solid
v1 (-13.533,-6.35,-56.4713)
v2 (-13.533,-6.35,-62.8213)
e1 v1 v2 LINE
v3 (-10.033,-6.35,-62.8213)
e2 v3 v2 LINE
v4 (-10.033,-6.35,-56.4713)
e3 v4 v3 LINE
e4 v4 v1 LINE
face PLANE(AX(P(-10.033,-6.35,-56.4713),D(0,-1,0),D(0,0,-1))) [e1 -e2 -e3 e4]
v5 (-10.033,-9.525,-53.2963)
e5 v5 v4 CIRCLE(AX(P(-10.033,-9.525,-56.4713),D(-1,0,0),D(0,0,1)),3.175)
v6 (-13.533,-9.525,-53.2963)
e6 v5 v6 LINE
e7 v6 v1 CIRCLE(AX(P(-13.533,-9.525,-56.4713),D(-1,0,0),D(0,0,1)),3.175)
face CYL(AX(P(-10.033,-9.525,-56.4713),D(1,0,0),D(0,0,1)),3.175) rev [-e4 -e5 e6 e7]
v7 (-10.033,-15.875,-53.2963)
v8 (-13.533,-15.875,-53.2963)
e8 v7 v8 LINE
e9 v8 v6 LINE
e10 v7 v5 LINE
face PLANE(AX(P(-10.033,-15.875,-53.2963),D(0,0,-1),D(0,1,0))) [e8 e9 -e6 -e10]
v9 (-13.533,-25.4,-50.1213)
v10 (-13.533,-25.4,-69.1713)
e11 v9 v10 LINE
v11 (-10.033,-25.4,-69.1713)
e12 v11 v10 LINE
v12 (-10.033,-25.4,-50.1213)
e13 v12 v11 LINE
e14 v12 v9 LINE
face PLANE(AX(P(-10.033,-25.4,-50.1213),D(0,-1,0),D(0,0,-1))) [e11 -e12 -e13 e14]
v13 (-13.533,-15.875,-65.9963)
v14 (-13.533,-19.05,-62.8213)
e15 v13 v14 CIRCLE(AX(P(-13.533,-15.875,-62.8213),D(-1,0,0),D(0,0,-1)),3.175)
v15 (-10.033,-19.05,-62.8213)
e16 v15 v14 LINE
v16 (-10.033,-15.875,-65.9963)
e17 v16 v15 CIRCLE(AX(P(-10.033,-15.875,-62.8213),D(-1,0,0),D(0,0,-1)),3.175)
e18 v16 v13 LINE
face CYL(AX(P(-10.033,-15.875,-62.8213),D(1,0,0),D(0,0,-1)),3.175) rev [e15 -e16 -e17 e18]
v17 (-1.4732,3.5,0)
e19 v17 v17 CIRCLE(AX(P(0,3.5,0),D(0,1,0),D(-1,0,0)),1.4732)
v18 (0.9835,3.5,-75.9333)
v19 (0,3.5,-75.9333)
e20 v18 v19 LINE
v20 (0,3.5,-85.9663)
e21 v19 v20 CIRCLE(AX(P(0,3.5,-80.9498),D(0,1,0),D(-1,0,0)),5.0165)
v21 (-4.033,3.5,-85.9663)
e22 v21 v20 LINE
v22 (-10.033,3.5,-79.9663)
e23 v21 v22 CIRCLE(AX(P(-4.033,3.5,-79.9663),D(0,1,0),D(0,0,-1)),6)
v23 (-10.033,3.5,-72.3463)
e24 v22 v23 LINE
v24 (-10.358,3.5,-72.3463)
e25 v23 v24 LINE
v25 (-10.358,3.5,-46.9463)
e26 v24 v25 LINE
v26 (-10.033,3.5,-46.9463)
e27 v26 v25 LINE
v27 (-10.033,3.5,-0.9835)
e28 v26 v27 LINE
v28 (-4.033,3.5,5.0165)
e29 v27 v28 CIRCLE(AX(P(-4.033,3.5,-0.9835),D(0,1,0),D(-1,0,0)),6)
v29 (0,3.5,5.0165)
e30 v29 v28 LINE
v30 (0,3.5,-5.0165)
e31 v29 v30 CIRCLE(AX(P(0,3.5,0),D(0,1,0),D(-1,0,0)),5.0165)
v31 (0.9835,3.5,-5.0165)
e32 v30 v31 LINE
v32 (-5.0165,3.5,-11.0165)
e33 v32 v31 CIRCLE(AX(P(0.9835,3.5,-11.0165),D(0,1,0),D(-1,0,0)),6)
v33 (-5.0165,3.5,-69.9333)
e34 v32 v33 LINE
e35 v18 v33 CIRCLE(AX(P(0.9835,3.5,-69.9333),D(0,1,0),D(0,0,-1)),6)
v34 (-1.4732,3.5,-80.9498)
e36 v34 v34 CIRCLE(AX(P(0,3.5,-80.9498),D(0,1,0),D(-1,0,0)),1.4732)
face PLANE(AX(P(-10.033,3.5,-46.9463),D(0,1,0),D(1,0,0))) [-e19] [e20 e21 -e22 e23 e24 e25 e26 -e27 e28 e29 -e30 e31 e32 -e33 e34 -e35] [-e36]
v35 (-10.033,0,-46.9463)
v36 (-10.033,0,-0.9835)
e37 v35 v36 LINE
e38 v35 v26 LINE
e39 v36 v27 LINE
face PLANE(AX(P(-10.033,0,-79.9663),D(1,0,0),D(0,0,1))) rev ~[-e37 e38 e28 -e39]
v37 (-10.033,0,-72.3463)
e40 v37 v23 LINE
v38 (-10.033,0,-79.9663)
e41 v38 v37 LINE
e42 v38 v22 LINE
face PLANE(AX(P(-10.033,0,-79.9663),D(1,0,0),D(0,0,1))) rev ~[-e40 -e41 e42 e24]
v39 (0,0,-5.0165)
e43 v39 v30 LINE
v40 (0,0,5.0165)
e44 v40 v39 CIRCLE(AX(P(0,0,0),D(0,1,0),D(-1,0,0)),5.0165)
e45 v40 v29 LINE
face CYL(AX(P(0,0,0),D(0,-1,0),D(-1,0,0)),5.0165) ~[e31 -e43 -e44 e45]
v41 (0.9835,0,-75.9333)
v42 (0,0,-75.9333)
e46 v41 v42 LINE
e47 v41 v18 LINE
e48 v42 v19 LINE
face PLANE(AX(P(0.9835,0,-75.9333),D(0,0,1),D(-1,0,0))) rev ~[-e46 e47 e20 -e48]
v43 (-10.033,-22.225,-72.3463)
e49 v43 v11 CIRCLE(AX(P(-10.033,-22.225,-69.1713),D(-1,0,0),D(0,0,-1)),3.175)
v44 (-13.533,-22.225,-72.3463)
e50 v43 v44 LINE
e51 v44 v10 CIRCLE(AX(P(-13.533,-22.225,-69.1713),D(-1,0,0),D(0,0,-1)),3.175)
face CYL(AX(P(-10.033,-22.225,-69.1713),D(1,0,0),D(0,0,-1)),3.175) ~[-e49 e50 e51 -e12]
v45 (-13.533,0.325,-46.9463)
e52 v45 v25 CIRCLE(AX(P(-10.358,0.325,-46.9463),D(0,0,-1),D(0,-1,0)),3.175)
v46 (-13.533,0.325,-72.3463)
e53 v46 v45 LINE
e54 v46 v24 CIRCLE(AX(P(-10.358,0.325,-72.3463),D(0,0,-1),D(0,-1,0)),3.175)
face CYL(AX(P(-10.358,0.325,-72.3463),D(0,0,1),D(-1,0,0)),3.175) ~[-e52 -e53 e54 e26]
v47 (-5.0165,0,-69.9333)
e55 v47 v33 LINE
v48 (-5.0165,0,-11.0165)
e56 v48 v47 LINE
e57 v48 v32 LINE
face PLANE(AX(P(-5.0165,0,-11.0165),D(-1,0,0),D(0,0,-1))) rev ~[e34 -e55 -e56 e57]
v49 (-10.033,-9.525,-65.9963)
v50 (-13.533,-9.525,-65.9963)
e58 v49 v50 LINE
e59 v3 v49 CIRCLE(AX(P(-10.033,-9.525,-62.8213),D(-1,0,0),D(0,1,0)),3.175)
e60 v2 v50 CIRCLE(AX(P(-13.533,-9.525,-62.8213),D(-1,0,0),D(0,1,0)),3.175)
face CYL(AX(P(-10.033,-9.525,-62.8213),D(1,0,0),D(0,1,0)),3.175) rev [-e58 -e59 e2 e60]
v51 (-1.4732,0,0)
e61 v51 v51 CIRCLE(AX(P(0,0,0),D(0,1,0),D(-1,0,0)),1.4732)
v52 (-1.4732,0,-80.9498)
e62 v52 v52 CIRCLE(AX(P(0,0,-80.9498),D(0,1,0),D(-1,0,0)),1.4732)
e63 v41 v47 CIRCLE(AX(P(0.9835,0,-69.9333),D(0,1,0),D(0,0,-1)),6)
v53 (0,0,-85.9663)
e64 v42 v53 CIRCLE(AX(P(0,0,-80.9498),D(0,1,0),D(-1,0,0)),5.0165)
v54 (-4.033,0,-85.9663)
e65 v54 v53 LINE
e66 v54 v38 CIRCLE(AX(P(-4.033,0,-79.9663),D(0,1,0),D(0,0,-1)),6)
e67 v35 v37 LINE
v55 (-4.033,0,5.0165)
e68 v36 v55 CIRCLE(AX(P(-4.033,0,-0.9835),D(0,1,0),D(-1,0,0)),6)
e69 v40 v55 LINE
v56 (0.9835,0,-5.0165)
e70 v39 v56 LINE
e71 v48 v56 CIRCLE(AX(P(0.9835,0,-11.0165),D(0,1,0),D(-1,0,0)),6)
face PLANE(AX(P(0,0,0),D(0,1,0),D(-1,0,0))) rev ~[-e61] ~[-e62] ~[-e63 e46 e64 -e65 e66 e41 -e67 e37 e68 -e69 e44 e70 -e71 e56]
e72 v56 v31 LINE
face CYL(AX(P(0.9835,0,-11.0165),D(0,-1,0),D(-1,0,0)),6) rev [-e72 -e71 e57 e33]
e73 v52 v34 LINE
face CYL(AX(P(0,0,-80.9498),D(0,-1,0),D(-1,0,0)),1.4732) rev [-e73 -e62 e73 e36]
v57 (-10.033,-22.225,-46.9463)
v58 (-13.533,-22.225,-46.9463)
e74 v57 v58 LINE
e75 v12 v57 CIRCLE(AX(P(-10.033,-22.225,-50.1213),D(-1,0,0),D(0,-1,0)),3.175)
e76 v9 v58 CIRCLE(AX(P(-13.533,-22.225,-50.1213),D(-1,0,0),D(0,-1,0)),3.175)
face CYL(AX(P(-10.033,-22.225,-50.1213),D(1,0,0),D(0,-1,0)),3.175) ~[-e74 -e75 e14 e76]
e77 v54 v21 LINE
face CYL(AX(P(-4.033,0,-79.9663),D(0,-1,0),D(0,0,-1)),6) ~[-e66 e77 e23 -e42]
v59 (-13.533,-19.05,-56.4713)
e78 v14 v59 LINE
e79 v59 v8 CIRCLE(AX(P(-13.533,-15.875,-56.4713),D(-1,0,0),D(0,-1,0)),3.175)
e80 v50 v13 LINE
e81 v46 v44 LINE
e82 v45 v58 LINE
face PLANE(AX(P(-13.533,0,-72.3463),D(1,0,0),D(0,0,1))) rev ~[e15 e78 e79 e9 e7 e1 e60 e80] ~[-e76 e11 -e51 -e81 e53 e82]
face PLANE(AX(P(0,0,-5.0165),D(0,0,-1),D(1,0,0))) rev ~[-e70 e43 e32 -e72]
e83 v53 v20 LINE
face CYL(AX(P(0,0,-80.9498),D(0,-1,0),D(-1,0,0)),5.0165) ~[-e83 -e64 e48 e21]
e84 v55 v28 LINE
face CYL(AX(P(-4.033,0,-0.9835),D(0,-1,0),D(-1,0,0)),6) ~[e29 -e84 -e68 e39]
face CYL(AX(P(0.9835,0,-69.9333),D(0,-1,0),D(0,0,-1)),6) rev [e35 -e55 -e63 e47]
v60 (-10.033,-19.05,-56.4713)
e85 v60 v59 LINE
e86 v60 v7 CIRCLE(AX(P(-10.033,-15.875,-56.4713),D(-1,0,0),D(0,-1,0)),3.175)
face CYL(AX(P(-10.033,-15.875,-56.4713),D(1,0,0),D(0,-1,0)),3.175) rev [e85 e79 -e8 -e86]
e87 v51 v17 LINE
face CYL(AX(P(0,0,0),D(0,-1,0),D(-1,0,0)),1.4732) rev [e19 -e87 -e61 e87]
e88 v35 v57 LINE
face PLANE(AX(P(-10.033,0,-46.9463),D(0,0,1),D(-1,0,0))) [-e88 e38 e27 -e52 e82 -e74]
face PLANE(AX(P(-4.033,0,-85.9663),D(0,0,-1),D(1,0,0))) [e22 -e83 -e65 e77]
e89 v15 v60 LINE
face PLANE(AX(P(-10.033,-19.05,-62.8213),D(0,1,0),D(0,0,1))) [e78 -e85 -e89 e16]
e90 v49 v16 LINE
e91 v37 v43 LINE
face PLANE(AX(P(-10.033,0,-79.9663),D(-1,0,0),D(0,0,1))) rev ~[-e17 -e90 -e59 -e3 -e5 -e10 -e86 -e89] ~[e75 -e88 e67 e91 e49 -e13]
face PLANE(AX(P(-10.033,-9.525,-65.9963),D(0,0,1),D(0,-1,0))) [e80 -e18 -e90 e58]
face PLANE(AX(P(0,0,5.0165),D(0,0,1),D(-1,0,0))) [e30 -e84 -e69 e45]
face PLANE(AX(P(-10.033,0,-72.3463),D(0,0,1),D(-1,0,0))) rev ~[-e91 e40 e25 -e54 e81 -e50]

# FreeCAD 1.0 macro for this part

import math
import FreeCAD as App
import Part
import Sketcher
Q = App.Units.Quantity


def edges_at(feature, points):
    """Names of the edges that pass closest to the given points."""
    edges = feature.Shape.Edges
    near = lambda p: min(range(len(edges)), key=lambda i: edges[i].distToShape(Part.Vertex(*p))[0])
    return sorted({f"Edge{near(p) + 1}" for p in points})

doc = App.newDocument("Part")
body = doc.addObject("PartDesign::Body", "Body")
body.AllowCompound = True

sketch1 = doc.addObject("Sketcher::SketchObject", "Sketch")
body.addObject(sketch1)
sketch1.AttachmentSupport = (doc.XZ_Plane, [""])
sketch1.MapMode = "FlatFace"
sketch1.addGeometry([
    Part.ArcOfCircle(Part.Circle(App.Vector(0, 0, 0), App.Vector(0, 0, 1), 5), math.radians(-90), math.radians(90)),
    Part.LineSegment(App.Vector(0, -5, 0), App.Vector(1, -5, 0)),
    Part.ArcOfCircle(Part.Circle(App.Vector(1, -11, 0), App.Vector(0, 0, 1), 6), math.radians(90), math.radians(180)),
    Part.LineSegment(App.Vector(-5, -11, 0), App.Vector(-5, -69.9, 0)),
    Part.ArcOfCircle(Part.Circle(App.Vector(1, -69.9, 0), App.Vector(0, 0, 1), 6), math.radians(180), math.radians(270)),
    Part.LineSegment(App.Vector(1, -75.9, 0), App.Vector(0, -75.9, 0)),
    Part.ArcOfCircle(Part.Circle(App.Vector(0, -80.9, 0), App.Vector(0, 0, 1), 5), math.radians(-90), math.radians(90)),
    Part.LineSegment(App.Vector(0, -86, 0), App.Vector(-4, -86, 0)),
    Part.ArcOfCircle(Part.Circle(App.Vector(-4, -80, 0), App.Vector(0, 0, 1), 6), math.radians(180), math.radians(270)),
    Part.LineSegment(App.Vector(-10, -80, 0), App.Vector(-10, -1, 0)),
    Part.ArcOfCircle(Part.Circle(App.Vector(-4, -1, 0), App.Vector(0, 0, 1), 6), math.radians(90), math.radians(180)),
    Part.LineSegment(App.Vector(-4, 5, 0), App.Vector(0, 5, 0)),
    Part.Circle(App.Vector(0, 0, 0), App.Vector(0, 0, 1), 1.5),
    Part.Circle(App.Vector(0, -80.9, 0), App.Vector(0, 0, 1), 1.5),
], False)
sketch1.addConstraint([
    Sketcher.Constraint("Tangent", 0, 1, 1, 1),
    Sketcher.Constraint("Tangent", 1, 2, 2, 1),
    Sketcher.Constraint("Tangent", 2, 2, 3, 1),
    Sketcher.Constraint("Tangent", 3, 2, 4, 1),
    Sketcher.Constraint("Tangent", 4, 2, 5, 1),
    Sketcher.Constraint("Tangent", 5, 2, 6, 2),
    Sketcher.Constraint("Tangent", 6, 1, 7, 1),
    Sketcher.Constraint("Tangent", 7, 2, 8, 2),
    Sketcher.Constraint("Tangent", 8, 1, 9, 1),
    Sketcher.Constraint("Tangent", 9, 2, 10, 2),
    Sketcher.Constraint("Tangent", 10, 1, 11, 1),
    Sketcher.Constraint("Tangent", 11, 2, 0, 2),
    Sketcher.Constraint("Horizontal", 1),
    Sketcher.Constraint("Vertical", 3),
    Sketcher.Constraint("Horizontal", 5),
    Sketcher.Constraint("Horizontal", 7),
    Sketcher.Constraint("Vertical", 9),
    Sketcher.Constraint("Horizontal", 11),
    Sketcher.Constraint("Coincident", 0, 3, -1, 1),
    Sketcher.Constraint("Coincident", 12, 3, -1, 1),
    Sketcher.Constraint("Coincident", 13, 3, 6, 3),
    Sketcher.Constraint("Equal", 2, 4),
    Sketcher.Constraint("Equal", 0, 6),
    Sketcher.Constraint("Equal", 4, 8),
    Sketcher.Constraint("Equal", 8, 10),
    Sketcher.Constraint("Equal", 12, 13),
    Sketcher.Constraint("PointOnObject", 6, 3, -2),
    Sketcher.Constraint("Diameter", 12, Q("0.116 in")),
    Sketcher.Constraint("Radius", 0, Q("0.1975 in")),
    Sketcher.Constraint("Radius", 2, Q("6 mm")),
    Sketcher.Constraint("DistanceY", 6, 3, -1, 1, Q("3.187 in")),
    Sketcher.Constraint("DistanceX", 8, 1, -1, 1, Q("0.395 in")),
    Sketcher.Constraint("DistanceX", 1, 1, 1, 2, Q("0.9835 mm")),
])
pad1 = doc.addObject("PartDesign::Pad", "Pad")
body.addObject(pad1)
pad1.Profile = sketch1
pad1.Length = Q("0.1377953 in")
pad1.Reversed = True

sketch2 = doc.addObject("Sketcher::SketchObject", "Sketch001")
body.addObject(sketch2)
sketch2.AttachmentSupport = (doc.YZ_Plane, [""])
sketch2.MapMode = "FlatFace"
sketch2.AttachmentOffset = App.Placement(App.Vector(0, 0, -0.395 * 25.4), App.Rotation())
sketch2.addGeometry([
    Part.LineSegment(App.Vector(0, -46.9, 0), App.Vector(0, -72.3, 0)),
    Part.LineSegment(App.Vector(0, -72.3, 0), App.Vector(-22.2, -72.3, 0)),
    Part.ArcOfCircle(Part.Circle(App.Vector(-22.2, -69.2, 0), App.Vector(0, 0, 1), 3.2), math.radians(180), math.radians(270)),
    Part.LineSegment(App.Vector(-25.4, -69.2, 0), App.Vector(-25.4, -50.1, 0)),
    Part.ArcOfCircle(Part.Circle(App.Vector(-22.2, -50.1, 0), App.Vector(0, 0, 1), 3.2), math.radians(90), math.radians(180)),
    Part.LineSegment(App.Vector(-22.2, -46.9, 0), App.Vector(0, -46.9, 0)),
    Part.LineSegment(App.Vector(-6.3, -62.8, 0), App.Vector(-6.3, -56.5, 0)),
    Part.ArcOfCircle(Part.Circle(App.Vector(-9.5, -56.5, 0), App.Vector(0, 0, 1), 3.2), math.radians(0), math.radians(90)),
    Part.LineSegment(App.Vector(-9.5, -53.3, 0), App.Vector(-15.9, -53.3, 0)),
    Part.ArcOfCircle(Part.Circle(App.Vector(-15.9, -56.5, 0), App.Vector(0, 0, 1), 3.2), math.radians(90), math.radians(180)),
    Part.LineSegment(App.Vector(-19.1, -56.5, 0), App.Vector(-19.1, -62.8, 0)),
    Part.ArcOfCircle(Part.Circle(App.Vector(-15.9, -62.8, 0), App.Vector(0, 0, 1), 3.2), math.radians(180), math.radians(270)),
    Part.LineSegment(App.Vector(-15.9, -66, 0), App.Vector(-9.5, -66, 0)),
    Part.ArcOfCircle(Part.Circle(App.Vector(-9.5, -62.8, 0), App.Vector(0, 0, 1), 3.2), math.radians(-90), math.radians(0)),
], False)
sketch2.addConstraint([
    Sketcher.Constraint("Coincident", 0, 2, 1, 1),
    Sketcher.Constraint("Tangent", 1, 2, 2, 2),
    Sketcher.Constraint("Tangent", 2, 1, 3, 1),
    Sketcher.Constraint("Tangent", 3, 2, 4, 2),
    Sketcher.Constraint("Tangent", 4, 1, 5, 1),
    Sketcher.Constraint("Coincident", 5, 2, 0, 1),
    Sketcher.Constraint("Tangent", 6, 2, 7, 1),
    Sketcher.Constraint("Tangent", 7, 2, 8, 1),
    Sketcher.Constraint("Tangent", 8, 2, 9, 1),
    Sketcher.Constraint("Tangent", 9, 2, 10, 1),
    Sketcher.Constraint("Tangent", 10, 2, 11, 1),
    Sketcher.Constraint("Tangent", 11, 2, 12, 1),
    Sketcher.Constraint("Tangent", 12, 2, 13, 1),
    Sketcher.Constraint("Tangent", 13, 2, 6, 1),
    Sketcher.Constraint("Vertical", 0),
    Sketcher.Constraint("Horizontal", 1),
    Sketcher.Constraint("Vertical", 3),
    Sketcher.Constraint("Horizontal", 5),
    Sketcher.Constraint("Vertical", 6),
    Sketcher.Constraint("Horizontal", 8),
    Sketcher.Constraint("Vertical", 10),
    Sketcher.Constraint("Horizontal", 12),
    Sketcher.Constraint("Equal", 2, 4),
    Sketcher.Constraint("Equal", 4, 7),
    Sketcher.Constraint("Equal", 7, 9),
    Sketcher.Constraint("Equal", 9, 11),
    Sketcher.Constraint("Equal", 11, 13),
    Sketcher.Constraint("PointOnObject", 0, 2, -2),
    Sketcher.Constraint("Equal", 12, 6),
    Sketcher.Constraint("DistanceY", 0, 2, 0, 1, Q("1 in")),
    Sketcher.Constraint("DistanceX", 2, 1, -1, 1, Q("1 in")),
    Sketcher.Constraint("Radius", 2, Q("0.125 in")),
    Sketcher.Constraint("DistanceX", 8, 2, 8, 1, Q("0.25 in")),
    Sketcher.Constraint("DistanceX", 6, 2, -1, 1, Q("0.25 in")),
    Sketcher.Constraint("DistanceY", 7, 3, 4, 3, Q("0.25 in")),
    Sketcher.Constraint("DistanceY", 2, 3, -1, 1, Q("69.1713 mm")),
])
pad2 = doc.addObject("PartDesign::Pad", "Pad001")
body.addObject(pad2)
pad2.Profile = sketch2
pad2.Length = Q("0.1377953 in")
pad2.Reversed = True

sketch3 = doc.addObject("Sketcher::SketchObject", "Sketch002")
body.addObject(sketch3)
sketch3.AttachmentSupport = (doc.XZ_Plane, [""])
sketch3.MapMode = "FlatFace"
sketch3.addGeometry([
    Part.LineSegment(App.Vector(-10, -46.9, 0), App.Vector(-10, -72.3, 0)),
    Part.LineSegment(App.Vector(-10, -72.3, 0), App.Vector(-13.5, -72.3, 0)),
    Part.LineSegment(App.Vector(-13.5, -72.3, 0), App.Vector(-13.5, -46.9, 0)),
    Part.LineSegment(App.Vector(-13.5, -46.9, 0), App.Vector(-10, -46.9, 0)),
], False)
sketch3.addConstraint([
    Sketcher.Constraint("Coincident", 0, 2, 1, 1),
    Sketcher.Constraint("Coincident", 1, 2, 2, 1),
    Sketcher.Constraint("Coincident", 2, 2, 3, 1),
    Sketcher.Constraint("Coincident", 3, 2, 0, 1),
    Sketcher.Constraint("Vertical", 0),
    Sketcher.Constraint("Horizontal", 1),
    Sketcher.Constraint("Vertical", 2),
    Sketcher.Constraint("Horizontal", 3),
    Sketcher.Constraint("DistanceY", 0, 2, 0, 1, Q("1 in")),
    Sketcher.Constraint("DistanceX", 1, 2, 1, 1, Q("0.1378 in")),
    Sketcher.Constraint("DistanceX", 0, 2, -1, 1, Q("0.395 in")),
    Sketcher.Constraint("DistanceY", 0, 2, -1, 1, Q("72.3463 mm")),
])
pad3 = doc.addObject("PartDesign::Pad", "Pad002")
body.addObject(pad3)
pad3.Profile = sketch3
pad3.Length = Q("0.1377953 in")
pad3.Reversed = True
doc.recompute()

fillet = doc.addObject("PartDesign::Fillet", "Fillet")
body.addObject(fillet)
fillet.Base = (pad3, edges_at(pad3, [(-13.533, 3.5, -59.646)]))
fillet.Radius = Q("0.125 in")

doc.recompute()
